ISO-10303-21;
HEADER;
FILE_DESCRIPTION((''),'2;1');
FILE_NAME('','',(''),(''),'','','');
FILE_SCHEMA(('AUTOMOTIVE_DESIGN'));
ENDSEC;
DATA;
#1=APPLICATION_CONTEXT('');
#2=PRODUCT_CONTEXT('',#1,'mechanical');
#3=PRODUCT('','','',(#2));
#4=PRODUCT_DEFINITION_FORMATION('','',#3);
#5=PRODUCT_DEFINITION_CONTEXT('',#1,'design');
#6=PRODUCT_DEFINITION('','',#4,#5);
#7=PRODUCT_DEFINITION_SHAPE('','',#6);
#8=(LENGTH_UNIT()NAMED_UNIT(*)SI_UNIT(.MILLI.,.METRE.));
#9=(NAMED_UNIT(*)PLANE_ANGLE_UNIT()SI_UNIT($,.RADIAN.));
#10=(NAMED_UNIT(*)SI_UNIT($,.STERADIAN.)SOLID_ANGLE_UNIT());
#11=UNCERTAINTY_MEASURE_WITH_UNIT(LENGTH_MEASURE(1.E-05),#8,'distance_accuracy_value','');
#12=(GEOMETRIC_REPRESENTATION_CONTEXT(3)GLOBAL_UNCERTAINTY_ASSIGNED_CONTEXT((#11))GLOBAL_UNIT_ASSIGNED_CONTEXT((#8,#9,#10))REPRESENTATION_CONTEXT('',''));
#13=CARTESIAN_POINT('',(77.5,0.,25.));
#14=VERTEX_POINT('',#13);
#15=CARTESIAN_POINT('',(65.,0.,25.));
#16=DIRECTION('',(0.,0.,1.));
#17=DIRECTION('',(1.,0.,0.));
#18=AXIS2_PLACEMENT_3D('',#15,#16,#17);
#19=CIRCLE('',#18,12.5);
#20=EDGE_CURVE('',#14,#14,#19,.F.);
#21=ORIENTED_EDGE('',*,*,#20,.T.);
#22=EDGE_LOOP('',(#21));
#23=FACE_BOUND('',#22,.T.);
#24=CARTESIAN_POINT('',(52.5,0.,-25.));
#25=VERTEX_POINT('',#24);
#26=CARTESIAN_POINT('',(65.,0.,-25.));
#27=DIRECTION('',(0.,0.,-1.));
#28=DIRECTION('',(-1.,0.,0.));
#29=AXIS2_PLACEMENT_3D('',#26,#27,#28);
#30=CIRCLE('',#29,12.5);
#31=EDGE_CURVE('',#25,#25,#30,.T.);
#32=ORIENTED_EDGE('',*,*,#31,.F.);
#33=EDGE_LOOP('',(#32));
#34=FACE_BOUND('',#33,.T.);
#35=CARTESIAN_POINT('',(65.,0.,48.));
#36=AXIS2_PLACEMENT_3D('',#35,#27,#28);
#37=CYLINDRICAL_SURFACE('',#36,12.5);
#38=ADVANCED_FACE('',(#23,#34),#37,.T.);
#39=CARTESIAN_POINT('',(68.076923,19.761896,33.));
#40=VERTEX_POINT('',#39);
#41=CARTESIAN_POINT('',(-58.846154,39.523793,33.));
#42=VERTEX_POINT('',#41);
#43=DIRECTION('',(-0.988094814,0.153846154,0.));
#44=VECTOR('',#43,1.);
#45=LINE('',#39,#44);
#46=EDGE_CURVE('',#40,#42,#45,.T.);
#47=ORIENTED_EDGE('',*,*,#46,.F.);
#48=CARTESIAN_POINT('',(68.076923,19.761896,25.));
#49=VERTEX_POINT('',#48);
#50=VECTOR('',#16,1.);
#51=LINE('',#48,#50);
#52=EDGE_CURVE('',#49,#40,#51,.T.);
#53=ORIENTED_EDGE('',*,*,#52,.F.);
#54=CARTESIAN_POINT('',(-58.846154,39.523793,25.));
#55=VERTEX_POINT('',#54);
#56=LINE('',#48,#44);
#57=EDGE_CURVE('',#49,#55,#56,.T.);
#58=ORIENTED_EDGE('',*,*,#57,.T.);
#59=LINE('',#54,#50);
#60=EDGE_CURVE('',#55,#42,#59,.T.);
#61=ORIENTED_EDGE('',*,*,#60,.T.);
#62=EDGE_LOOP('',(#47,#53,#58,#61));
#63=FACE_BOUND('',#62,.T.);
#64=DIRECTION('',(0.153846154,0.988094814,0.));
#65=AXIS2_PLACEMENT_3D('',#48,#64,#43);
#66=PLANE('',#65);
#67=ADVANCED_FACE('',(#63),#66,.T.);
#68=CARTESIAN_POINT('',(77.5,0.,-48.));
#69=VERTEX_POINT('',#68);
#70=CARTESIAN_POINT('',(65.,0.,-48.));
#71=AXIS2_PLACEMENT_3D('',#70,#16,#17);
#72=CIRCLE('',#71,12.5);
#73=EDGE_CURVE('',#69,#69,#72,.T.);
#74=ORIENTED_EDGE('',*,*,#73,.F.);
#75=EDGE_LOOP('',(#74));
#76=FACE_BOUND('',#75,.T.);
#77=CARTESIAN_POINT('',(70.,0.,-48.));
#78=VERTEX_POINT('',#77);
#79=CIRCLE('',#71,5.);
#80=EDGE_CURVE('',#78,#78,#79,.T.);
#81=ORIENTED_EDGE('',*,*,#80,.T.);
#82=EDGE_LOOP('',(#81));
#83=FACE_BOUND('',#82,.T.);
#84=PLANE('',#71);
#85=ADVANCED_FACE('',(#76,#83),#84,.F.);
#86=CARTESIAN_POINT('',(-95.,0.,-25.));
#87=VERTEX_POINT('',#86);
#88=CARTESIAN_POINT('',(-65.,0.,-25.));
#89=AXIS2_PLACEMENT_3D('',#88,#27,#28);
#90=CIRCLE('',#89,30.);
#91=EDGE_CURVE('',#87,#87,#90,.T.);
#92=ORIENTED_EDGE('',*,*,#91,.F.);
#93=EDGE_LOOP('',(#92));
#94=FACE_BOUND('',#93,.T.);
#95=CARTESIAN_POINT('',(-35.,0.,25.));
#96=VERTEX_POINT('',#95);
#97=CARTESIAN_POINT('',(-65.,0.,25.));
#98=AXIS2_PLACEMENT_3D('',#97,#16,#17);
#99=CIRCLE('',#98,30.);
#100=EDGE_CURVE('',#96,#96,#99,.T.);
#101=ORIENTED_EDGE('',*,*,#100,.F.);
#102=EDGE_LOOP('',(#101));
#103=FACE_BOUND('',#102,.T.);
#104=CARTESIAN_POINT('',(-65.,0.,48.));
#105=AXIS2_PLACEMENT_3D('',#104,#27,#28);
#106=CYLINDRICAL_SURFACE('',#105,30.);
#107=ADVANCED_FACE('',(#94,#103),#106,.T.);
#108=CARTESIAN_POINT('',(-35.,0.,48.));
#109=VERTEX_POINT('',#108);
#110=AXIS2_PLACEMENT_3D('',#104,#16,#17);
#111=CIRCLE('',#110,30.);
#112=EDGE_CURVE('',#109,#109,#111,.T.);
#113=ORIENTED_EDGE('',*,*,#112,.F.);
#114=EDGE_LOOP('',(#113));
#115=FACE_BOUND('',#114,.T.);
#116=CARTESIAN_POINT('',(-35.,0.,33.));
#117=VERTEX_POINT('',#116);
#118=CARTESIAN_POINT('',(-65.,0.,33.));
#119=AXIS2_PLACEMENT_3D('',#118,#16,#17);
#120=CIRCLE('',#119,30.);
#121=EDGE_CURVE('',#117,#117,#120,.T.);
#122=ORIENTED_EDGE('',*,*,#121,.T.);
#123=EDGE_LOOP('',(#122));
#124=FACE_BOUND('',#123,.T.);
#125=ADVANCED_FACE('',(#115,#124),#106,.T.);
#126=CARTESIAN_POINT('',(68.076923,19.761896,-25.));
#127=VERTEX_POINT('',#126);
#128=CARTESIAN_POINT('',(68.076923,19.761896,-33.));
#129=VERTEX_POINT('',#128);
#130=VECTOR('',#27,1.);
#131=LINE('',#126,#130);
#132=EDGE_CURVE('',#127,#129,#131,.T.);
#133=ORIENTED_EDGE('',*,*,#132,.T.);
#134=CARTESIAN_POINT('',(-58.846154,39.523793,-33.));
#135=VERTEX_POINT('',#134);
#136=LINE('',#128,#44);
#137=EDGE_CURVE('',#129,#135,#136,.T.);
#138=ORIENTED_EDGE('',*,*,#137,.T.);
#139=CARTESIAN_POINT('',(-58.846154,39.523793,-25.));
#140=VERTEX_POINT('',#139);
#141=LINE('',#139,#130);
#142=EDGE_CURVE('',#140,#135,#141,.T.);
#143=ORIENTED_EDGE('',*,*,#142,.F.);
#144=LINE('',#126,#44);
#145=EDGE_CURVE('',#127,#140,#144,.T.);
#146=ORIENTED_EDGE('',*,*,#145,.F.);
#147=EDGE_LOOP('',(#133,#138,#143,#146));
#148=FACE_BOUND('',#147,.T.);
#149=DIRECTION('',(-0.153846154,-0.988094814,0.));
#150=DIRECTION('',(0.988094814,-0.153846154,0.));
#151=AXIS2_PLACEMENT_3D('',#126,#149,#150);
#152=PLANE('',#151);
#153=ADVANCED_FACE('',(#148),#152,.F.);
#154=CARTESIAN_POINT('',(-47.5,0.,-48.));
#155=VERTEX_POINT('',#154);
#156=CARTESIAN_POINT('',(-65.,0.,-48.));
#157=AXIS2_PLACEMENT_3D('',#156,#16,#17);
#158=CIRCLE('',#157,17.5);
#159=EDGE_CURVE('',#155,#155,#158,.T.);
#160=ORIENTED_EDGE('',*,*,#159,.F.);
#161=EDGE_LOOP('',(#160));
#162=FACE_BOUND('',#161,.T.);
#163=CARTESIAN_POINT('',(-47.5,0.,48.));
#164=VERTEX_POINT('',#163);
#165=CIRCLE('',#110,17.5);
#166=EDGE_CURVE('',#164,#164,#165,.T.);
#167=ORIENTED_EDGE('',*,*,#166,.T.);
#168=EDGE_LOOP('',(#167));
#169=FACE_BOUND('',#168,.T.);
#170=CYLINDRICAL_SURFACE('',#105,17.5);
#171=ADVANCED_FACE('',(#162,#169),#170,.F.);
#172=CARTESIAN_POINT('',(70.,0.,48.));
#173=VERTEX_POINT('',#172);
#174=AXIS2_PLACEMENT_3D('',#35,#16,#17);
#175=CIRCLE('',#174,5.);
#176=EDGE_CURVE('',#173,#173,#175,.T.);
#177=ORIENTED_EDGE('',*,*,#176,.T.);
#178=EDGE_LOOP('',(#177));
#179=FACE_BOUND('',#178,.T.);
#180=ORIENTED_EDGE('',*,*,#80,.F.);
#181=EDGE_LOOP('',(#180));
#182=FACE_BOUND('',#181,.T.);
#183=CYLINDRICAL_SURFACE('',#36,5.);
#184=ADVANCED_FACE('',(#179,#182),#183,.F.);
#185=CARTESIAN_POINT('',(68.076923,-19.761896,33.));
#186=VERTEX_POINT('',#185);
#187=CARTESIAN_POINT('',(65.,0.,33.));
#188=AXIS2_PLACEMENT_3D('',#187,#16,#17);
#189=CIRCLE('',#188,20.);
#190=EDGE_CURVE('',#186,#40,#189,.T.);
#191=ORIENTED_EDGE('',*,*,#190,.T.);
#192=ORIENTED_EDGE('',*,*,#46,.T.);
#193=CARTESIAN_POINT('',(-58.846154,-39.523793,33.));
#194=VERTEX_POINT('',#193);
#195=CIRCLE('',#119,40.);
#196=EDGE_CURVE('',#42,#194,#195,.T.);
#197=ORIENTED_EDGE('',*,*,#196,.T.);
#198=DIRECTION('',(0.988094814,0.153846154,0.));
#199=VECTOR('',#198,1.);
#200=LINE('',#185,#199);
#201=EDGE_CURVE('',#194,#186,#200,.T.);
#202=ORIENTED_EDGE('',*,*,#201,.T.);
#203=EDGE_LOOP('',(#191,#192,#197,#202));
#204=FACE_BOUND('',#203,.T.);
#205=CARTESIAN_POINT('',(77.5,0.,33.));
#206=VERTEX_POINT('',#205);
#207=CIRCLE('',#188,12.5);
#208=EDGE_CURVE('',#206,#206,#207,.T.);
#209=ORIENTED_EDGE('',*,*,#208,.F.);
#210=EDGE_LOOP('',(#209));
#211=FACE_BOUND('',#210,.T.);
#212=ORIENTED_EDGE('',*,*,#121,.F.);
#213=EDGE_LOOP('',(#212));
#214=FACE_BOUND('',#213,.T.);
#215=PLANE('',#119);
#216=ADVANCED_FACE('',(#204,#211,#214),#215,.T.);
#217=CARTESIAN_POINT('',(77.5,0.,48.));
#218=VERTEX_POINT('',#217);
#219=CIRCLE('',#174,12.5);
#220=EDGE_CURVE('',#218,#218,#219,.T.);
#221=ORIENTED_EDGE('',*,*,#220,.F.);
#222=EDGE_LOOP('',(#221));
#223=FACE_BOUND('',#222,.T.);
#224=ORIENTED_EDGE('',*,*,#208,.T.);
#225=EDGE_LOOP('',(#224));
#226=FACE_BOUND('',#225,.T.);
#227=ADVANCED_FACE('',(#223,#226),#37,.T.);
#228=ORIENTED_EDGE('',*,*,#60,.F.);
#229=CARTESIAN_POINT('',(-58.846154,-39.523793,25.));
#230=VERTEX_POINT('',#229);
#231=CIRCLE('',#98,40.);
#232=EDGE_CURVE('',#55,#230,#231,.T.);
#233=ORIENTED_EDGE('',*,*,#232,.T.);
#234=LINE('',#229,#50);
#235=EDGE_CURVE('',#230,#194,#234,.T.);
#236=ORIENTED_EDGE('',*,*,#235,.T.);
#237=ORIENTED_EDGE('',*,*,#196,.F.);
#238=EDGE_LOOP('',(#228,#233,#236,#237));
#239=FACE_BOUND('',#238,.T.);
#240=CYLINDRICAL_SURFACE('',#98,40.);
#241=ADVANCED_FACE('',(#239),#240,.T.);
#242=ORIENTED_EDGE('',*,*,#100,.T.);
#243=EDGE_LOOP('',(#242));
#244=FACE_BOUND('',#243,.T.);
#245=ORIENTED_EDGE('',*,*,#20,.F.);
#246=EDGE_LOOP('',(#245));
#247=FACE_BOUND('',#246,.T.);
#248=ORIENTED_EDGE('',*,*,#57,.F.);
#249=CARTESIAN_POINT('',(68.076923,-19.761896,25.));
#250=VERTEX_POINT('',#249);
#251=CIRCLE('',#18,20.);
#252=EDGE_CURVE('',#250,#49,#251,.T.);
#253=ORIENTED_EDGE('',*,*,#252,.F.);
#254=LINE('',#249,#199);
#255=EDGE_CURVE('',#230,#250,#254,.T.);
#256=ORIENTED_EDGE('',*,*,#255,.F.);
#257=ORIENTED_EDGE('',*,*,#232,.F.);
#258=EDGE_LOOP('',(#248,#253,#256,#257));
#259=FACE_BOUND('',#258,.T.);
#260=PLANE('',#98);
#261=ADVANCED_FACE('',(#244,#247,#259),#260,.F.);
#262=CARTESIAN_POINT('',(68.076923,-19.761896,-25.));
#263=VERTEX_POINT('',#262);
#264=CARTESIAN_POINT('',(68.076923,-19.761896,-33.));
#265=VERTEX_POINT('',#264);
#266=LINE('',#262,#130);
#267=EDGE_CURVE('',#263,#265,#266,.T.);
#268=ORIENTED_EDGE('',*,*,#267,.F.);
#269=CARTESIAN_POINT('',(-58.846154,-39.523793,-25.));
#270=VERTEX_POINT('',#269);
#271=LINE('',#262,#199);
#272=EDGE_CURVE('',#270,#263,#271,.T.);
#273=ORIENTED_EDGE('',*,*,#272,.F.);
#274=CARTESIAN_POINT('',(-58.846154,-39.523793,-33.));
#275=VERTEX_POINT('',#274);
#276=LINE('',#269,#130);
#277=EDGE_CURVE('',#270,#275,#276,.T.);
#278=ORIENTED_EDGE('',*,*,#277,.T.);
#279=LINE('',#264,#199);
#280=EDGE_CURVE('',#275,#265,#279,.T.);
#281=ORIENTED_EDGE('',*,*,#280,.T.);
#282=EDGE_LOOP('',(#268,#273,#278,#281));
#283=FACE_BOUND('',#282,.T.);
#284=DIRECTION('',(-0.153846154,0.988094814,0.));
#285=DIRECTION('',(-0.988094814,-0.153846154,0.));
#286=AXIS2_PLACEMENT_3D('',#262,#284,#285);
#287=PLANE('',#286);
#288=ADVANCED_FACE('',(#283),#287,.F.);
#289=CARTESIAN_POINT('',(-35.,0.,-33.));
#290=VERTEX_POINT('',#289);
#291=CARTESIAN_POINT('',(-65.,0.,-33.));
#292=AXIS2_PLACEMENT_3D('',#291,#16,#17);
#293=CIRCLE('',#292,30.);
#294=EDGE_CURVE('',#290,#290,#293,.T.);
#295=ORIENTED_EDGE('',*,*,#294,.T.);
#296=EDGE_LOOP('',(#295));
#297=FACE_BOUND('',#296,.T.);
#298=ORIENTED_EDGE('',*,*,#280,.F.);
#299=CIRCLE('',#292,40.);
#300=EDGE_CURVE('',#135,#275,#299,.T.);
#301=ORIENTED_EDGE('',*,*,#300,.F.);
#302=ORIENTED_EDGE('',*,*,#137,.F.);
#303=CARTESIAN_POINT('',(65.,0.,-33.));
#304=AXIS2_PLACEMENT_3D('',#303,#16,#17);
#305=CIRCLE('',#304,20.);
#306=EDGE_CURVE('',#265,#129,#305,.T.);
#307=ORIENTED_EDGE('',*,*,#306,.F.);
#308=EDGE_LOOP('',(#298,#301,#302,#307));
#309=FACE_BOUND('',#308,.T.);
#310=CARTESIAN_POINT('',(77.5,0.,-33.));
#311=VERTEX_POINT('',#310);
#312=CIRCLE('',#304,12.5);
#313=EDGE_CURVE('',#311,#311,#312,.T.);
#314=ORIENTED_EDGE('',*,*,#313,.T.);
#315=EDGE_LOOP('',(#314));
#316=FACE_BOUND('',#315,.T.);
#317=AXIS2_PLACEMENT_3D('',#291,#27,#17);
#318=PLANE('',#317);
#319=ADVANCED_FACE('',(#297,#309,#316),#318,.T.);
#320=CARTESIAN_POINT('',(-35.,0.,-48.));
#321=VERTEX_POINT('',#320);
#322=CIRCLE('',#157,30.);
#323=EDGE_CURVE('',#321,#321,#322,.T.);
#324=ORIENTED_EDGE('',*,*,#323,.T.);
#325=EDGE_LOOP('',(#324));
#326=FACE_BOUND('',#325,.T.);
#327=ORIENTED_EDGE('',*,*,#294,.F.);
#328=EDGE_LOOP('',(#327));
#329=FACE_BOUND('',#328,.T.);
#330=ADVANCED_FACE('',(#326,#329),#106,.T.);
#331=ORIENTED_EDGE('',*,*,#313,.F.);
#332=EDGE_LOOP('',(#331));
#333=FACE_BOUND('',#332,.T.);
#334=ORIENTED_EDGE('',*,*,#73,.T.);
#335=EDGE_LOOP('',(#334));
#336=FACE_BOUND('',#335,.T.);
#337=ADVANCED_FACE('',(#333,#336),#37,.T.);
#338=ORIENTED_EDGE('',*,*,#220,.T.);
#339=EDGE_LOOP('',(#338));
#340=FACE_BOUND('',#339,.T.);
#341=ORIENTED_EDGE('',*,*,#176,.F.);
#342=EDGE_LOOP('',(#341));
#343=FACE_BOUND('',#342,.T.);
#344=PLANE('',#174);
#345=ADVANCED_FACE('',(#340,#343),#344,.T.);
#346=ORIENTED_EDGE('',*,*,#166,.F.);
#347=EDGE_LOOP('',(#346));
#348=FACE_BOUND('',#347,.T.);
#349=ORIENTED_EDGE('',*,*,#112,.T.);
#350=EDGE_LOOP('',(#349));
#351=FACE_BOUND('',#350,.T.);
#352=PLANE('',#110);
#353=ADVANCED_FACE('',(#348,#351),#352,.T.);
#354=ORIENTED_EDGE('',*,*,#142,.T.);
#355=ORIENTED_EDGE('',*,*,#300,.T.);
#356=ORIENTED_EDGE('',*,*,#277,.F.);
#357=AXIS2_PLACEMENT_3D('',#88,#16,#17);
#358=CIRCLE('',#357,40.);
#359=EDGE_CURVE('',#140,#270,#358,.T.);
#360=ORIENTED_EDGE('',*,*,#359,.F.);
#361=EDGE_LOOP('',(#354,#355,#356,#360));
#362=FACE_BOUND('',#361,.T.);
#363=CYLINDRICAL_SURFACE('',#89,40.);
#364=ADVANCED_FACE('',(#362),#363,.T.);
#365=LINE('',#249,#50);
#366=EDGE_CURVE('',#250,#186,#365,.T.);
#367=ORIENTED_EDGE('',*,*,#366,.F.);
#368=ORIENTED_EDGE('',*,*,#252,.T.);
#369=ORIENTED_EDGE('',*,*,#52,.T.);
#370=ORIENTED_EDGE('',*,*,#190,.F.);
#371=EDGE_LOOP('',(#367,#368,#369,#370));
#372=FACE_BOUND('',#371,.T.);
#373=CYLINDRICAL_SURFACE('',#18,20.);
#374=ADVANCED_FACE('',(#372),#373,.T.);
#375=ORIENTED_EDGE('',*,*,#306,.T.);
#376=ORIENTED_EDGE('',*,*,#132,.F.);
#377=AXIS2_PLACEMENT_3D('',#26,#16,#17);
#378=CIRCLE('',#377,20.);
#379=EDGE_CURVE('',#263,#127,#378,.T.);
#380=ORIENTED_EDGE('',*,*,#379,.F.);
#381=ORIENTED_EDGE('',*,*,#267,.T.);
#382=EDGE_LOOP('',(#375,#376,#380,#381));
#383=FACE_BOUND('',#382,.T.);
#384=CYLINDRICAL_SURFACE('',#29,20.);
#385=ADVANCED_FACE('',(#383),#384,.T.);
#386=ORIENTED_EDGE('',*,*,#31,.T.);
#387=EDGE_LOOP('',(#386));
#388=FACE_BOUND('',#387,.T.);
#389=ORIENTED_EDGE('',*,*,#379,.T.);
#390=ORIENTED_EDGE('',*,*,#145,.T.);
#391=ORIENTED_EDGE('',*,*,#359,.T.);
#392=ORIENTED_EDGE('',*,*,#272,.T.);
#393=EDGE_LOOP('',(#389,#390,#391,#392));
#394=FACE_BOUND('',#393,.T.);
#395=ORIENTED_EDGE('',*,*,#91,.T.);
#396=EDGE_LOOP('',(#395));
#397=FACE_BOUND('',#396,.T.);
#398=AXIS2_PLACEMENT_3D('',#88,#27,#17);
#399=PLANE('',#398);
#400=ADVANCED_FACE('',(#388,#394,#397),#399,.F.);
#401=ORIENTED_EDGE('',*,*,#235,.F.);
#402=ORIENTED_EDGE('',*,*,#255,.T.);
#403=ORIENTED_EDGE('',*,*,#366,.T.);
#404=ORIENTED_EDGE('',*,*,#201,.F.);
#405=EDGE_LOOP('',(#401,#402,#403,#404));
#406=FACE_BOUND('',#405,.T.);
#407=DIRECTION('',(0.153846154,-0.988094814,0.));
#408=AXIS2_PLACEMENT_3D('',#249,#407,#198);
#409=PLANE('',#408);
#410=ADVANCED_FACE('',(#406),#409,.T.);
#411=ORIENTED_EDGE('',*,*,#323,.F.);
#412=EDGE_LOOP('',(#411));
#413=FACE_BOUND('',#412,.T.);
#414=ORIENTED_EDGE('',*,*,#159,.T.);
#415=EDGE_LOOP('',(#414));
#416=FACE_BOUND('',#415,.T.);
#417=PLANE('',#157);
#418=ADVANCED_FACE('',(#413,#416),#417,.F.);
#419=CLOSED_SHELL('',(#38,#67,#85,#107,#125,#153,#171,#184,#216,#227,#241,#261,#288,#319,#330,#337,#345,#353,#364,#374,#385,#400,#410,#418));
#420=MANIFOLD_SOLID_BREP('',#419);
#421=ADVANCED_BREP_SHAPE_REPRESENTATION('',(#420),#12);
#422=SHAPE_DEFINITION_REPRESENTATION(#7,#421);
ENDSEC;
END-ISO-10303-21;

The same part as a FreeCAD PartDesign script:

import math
import FreeCAD as App
import Part
import Sketcher
from FreeCAD import Vector
Q = App.Units.Quantity

doc = App.newDocument("Part")
body = doc.addObject("PartDesign::Body", "Body")

# Sketch on XY plane
sketch1 = doc.addObject("Sketcher::SketchObject", "Sketch")
body.addObject(sketch1)
sketch1.AttachmentSupport = (doc.XY_Plane, [""])
sketch1.MapMode = "FlatFace"
sketch1.addGeometry(Part.Circle(Vector(-65, 0, 0), Vector(0, 0, 1), 30), False)
sketch1.addGeometry(Part.Circle(Vector(-65, 0, 0), Vector(0, 0, 1), 17.5), False)
sketch1.addConstraint(Sketcher.Constraint("Coincident", 1, 3, 0, 3))
sketch1.addConstraint(Sketcher.Constraint("PointOnObject", 0, 3, -1))
sketch1.addConstraint(Sketcher.Constraint("Diameter", 0, Q("60 mm")))
sketch1.addConstraint(Sketcher.Constraint("Diameter", 1, Q("35 mm")))
sketch1.addConstraint(Sketcher.Constraint("DistanceX", 0, 3, -1, 1, Q("65 mm")))
pad1 = doc.addObject("PartDesign::Pad", "Pad")
body.addObject(pad1)
pad1.Profile = sketch1
pad1.Length = 96
pad1.Midplane = True
body2 = doc.addObject("PartDesign::Body", "Body001")

# Sketch on XY plane
sketch2 = doc.addObject("Sketcher::SketchObject", "Sketch001")
body2.addObject(sketch2)
sketch2.AttachmentSupport = (doc.getObject("XY_Plane001"), [""])
sketch2.MapMode = "FlatFace"
sketch2.addGeometry(Part.Circle(Vector(65, 0, 0), Vector(0, 0, 1), 12.5), False)
sketch2.addGeometry(Part.Circle(Vector(65, 0, 0), Vector(0, 0, 1), 5), False)
sketch2.addConstraint(Sketcher.Constraint("Coincident", 1, 3, 0, 3))
sketch2.addConstraint(Sketcher.Constraint("PointOnObject", 0, 3, -1))
sketch2.addConstraint(Sketcher.Constraint("Diameter", 0, Q("25 mm")))
sketch2.addConstraint(Sketcher.Constraint("Diameter", 1, Q("10 mm")))
sketch2.addConstraint(Sketcher.Constraint("DistanceX", -1, 1, 0, 3, Q("65 mm")))
pad2 = doc.addObject("PartDesign::Pad", "Pad001")
body2.addObject(pad2)
pad2.Profile = sketch2
pad2.Length = 96
pad2.Midplane = True
body.AllowCompound = True
doc.recompute()

boolean = doc.addObject("PartDesign::Boolean", "Boolean")
body.addObject(boolean)
boolean.Type = "Fuse"
boolean.addObjects([body2])

# Sketch on XY plane
sketch3 = doc.addObject("Sketcher::SketchObject", "Sketch002")
body.addObject(sketch3)
sketch3.AttachmentSupport = (doc.XY_Plane, [""])
sketch3.MapMode = "FlatFace"
sketch3.AttachmentOffset = App.Placement(Vector(0, 0, 33), App.Rotation())
sketch3.addGeometry(Part.LineSegment(Vector(-58.846154, -39.523793, 0), Vector(68.076923, -19.761896, 0)), False)
sketch3.addGeometry(Part.ArcOfCircle(Part.Circle(Vector(65, 0, 0), Vector(0, 0, 1), 20), math.radians(-81.150117), math.radians(81.150117)), False)
sketch3.addGeometry(Part.LineSegment(Vector(68.076923, 19.761896, 0), Vector(-58.846154, 39.523793, 0)), False)
sketch3.addGeometry(Part.ArcOfCircle(Part.Circle(Vector(-65, 0, 0), Vector(0, 0, 1), 40), math.radians(81.150117), math.radians(278.849883)), False)
sketch3.addGeometry(Part.Circle(Vector(65, 0, 0), Vector(0, 0, 1), 12.5), False)
sketch3.addGeometry(Part.Circle(Vector(-65, 0, 0), Vector(0, 0, 1), 30), False)
sketch3.addConstraint(Sketcher.Constraint("Tangent", 0, 2, 1, 1))
sketch3.addConstraint(Sketcher.Constraint("Tangent", 1, 2, 2, 1))
sketch3.addConstraint(Sketcher.Constraint("Tangent", 2, 2, 3, 1))
sketch3.addConstraint(Sketcher.Constraint("Tangent", 3, 2, 0, 1))
sketch3.addConstraint(Sketcher.Constraint("Coincident", 4, 3, 1, 3))
sketch3.addConstraint(Sketcher.Constraint("Coincident", 5, 3, 3, 3))
sketch3.addConstraint(Sketcher.Constraint("Symmetric", 1, 3, 3, 3, -1, 1))
sketch3.addConstraint(Sketcher.Constraint("PointOnObject", 1, 3, -1))
sketch3.addConstraint(Sketcher.Constraint("Diameter", 4, Q("25 mm")))
sketch3.addConstraint(Sketcher.Constraint("Diameter", 5, Q("60 mm")))
sketch3.addConstraint(Sketcher.Constraint("Radius", 1, Q("20 mm")))
sketch3.addConstraint(Sketcher.Constraint("Radius", 3, Q("40 mm")))
sketch3.addConstraint(Sketcher.Constraint("DistanceX", -1, 1, 1, 3, Q("65 mm")))
pad3 = doc.addObject("PartDesign::Pad", "Pad002")
body.addObject(pad3)
pad3.Profile = sketch3
pad3.Length = 8
pad3.Reversed = True
doc.recompute()

mirrored = doc.addObject("PartDesign::Mirrored", "Mirrored")
body.addObject(mirrored)
mirrored.Originals = [pad3]
mirrored.MirrorPlane = (doc.XY_Plane, [""])
body.Tip = mirrored

doc.recompute()
